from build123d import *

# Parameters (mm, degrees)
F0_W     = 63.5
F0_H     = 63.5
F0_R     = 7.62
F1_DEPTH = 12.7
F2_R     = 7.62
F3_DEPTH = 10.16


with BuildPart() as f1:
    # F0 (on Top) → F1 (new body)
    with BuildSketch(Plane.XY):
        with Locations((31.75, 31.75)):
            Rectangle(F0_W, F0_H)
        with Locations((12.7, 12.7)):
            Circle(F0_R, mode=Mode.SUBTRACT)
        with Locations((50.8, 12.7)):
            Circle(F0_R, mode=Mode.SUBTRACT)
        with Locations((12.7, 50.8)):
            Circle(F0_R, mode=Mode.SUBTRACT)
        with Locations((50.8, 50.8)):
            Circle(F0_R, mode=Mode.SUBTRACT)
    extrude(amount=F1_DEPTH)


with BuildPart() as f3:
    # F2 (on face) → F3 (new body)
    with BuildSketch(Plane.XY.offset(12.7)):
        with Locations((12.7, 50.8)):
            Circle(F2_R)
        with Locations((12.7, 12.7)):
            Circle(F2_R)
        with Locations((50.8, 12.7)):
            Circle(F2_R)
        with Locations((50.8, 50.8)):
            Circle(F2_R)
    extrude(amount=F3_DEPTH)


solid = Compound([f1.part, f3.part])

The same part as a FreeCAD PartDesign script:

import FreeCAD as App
import Part
import Sketcher
from FreeCAD import Vector
Q = App.Units.Quantity

doc = App.newDocument("Part")
body = doc.addObject("PartDesign::Body", "Body")

# Sketch on XY plane
sketch1 = doc.addObject("Sketcher::SketchObject", "Sketch")
body.addObject(sketch1)
sketch1.AttachmentSupport = (doc.XY_Plane, [""])
sketch1.MapMode = "FlatFace"
sketch1.addGeometry([
    Part.LineSegment(Vector(0, 64, 0), Vector(0, 0, 0)),  # 0
    Part.LineSegment(Vector(0, 0, 0), Vector(64, 0, 0)),  # 1
    Part.LineSegment(Vector(64, 0, 0), Vector(64, 64, 0)),  # 2
    Part.LineSegment(Vector(64, 64, 0), Vector(0, 64, 0)),  # 3
    Part.Circle(Vector(13, 13, 0), Vector(0, 0, 1), 8),  # 4
    Part.Circle(Vector(51, 13, 0), Vector(0, 0, 1), 8),  # 5
    Part.Circle(Vector(13, 51, 0), Vector(0, 0, 1), 8),  # 6
    Part.Circle(Vector(51, 51, 0), Vector(0, 0, 1), 8),  # 7
], False)
sketch1.addConstraint([
    Sketcher.Constraint("Coincident", 0, 2, 1, 1),
    Sketcher.Constraint("Coincident", 1, 2, 2, 1),
    Sketcher.Constraint("Coincident", 2, 2, 3, 1),
    Sketcher.Constraint("Coincident", 3, 2, 0, 1),
    Sketcher.Constraint("Vertical", 0),
    Sketcher.Constraint("Horizontal", 1),
    Sketcher.Constraint("Vertical", 2),
    Sketcher.Constraint("Horizontal", 3),
    Sketcher.Constraint("Coincident", 0, 2, -1, 1),
    Sketcher.Constraint("Equal", 4, 5),
    Sketcher.Constraint("Equal", 5, 6),
    Sketcher.Constraint("Equal", 6, 7),
    Sketcher.Constraint("Horizontal", 4, 3, 5, 3),
    Sketcher.Constraint("Horizontal", 6, 3, 7, 3),
    Sketcher.Constraint("Vertical", 4, 3, 6, 3),
    Sketcher.Constraint("Vertical", 5, 3, 7, 3),
    Sketcher.Constraint("Equal", 3, 0),
    Sketcher.Constraint("Diameter", 4, Q("0.6 in")),
    Sketcher.Constraint("DistanceX", 1, 1, 1, 2, Q("2.5 in")),
    Sketcher.Constraint("DistanceX", -1, 1, 5, 3, Q("2 in")),
    Sketcher.Constraint("DistanceY", -1, 1, 6, 3, Q("2 in")),
    Sketcher.Constraint("DistanceX", 4, 3, 1, 2, Q("2 in")),
    Sketcher.Constraint("DistanceY", 5, 3, 2, 2, Q("2 in")),
])
pad1 = doc.addObject("PartDesign::Pad", "Pad")
body.addObject(pad1)
pad1.Profile = sketch1
pad1.Length = Q("0.5 in")
body2 = doc.addObject("PartDesign::Body", "Body001")
body2.AllowCompound = True

# Sketch on XY plane
sketch2 = doc.addObject("Sketcher::SketchObject", "Sketch001")
body2.addObject(sketch2)
sketch2.AttachmentSupport = (doc.getObject("XY_Plane001"), [""])
sketch2.MapMode = "FlatFace"
sketch2.AttachmentOffset = App.Placement(Vector(0, 0, 0.5 * 25.4), App.Rotation())
sketch2.addGeometry([
    Part.Circle(Vector(13, 51, 0), Vector(0, 0, 1), 8),
    Part.Circle(Vector(13, 13, 0), Vector(0, 0, 1), 8),
    Part.Circle(Vector(51, 13, 0), Vector(0, 0, 1), 8),
    Part.Circle(Vector(51, 51, 0), Vector(0, 0, 1), 8),
], False)
sketch2.addConstraint([
    Sketcher.Constraint("Equal", 0, 1),
    Sketcher.Constraint("Equal", 1, 2),
    Sketcher.Constraint("Equal", 2, 3),
    Sketcher.Constraint("Horizontal", 1, 3, 2, 3),
    Sketcher.Constraint("Horizontal", 0, 3, 3, 3),
    Sketcher.Constraint("Vertical", 0, 3, 1, 3),
    Sketcher.Constraint("Vertical", 2, 3, 3, 3),
    Sketcher.Constraint("Diameter", 0, Q("0.6 in")),
    Sketcher.Constraint("DistanceY", -1, 1, 0, 3, Q("2 in")),
    Sketcher.Constraint("DistanceX", -1, 1, 2, 3, Q("2 in")),
    Sketcher.Constraint("DistanceX", -1, 1, 0, 3, Q("0.5 in")),
    Sketcher.Constraint("DistanceY", -1, 1, 1, 3, Q("0.5 in")),
])
pad2 = doc.addObject("PartDesign::Pad", "Pad001")
body2.addObject(pad2)
pad2.Profile = sketch2
pad2.Length = Q("0.4 in")

doc.recompute()
